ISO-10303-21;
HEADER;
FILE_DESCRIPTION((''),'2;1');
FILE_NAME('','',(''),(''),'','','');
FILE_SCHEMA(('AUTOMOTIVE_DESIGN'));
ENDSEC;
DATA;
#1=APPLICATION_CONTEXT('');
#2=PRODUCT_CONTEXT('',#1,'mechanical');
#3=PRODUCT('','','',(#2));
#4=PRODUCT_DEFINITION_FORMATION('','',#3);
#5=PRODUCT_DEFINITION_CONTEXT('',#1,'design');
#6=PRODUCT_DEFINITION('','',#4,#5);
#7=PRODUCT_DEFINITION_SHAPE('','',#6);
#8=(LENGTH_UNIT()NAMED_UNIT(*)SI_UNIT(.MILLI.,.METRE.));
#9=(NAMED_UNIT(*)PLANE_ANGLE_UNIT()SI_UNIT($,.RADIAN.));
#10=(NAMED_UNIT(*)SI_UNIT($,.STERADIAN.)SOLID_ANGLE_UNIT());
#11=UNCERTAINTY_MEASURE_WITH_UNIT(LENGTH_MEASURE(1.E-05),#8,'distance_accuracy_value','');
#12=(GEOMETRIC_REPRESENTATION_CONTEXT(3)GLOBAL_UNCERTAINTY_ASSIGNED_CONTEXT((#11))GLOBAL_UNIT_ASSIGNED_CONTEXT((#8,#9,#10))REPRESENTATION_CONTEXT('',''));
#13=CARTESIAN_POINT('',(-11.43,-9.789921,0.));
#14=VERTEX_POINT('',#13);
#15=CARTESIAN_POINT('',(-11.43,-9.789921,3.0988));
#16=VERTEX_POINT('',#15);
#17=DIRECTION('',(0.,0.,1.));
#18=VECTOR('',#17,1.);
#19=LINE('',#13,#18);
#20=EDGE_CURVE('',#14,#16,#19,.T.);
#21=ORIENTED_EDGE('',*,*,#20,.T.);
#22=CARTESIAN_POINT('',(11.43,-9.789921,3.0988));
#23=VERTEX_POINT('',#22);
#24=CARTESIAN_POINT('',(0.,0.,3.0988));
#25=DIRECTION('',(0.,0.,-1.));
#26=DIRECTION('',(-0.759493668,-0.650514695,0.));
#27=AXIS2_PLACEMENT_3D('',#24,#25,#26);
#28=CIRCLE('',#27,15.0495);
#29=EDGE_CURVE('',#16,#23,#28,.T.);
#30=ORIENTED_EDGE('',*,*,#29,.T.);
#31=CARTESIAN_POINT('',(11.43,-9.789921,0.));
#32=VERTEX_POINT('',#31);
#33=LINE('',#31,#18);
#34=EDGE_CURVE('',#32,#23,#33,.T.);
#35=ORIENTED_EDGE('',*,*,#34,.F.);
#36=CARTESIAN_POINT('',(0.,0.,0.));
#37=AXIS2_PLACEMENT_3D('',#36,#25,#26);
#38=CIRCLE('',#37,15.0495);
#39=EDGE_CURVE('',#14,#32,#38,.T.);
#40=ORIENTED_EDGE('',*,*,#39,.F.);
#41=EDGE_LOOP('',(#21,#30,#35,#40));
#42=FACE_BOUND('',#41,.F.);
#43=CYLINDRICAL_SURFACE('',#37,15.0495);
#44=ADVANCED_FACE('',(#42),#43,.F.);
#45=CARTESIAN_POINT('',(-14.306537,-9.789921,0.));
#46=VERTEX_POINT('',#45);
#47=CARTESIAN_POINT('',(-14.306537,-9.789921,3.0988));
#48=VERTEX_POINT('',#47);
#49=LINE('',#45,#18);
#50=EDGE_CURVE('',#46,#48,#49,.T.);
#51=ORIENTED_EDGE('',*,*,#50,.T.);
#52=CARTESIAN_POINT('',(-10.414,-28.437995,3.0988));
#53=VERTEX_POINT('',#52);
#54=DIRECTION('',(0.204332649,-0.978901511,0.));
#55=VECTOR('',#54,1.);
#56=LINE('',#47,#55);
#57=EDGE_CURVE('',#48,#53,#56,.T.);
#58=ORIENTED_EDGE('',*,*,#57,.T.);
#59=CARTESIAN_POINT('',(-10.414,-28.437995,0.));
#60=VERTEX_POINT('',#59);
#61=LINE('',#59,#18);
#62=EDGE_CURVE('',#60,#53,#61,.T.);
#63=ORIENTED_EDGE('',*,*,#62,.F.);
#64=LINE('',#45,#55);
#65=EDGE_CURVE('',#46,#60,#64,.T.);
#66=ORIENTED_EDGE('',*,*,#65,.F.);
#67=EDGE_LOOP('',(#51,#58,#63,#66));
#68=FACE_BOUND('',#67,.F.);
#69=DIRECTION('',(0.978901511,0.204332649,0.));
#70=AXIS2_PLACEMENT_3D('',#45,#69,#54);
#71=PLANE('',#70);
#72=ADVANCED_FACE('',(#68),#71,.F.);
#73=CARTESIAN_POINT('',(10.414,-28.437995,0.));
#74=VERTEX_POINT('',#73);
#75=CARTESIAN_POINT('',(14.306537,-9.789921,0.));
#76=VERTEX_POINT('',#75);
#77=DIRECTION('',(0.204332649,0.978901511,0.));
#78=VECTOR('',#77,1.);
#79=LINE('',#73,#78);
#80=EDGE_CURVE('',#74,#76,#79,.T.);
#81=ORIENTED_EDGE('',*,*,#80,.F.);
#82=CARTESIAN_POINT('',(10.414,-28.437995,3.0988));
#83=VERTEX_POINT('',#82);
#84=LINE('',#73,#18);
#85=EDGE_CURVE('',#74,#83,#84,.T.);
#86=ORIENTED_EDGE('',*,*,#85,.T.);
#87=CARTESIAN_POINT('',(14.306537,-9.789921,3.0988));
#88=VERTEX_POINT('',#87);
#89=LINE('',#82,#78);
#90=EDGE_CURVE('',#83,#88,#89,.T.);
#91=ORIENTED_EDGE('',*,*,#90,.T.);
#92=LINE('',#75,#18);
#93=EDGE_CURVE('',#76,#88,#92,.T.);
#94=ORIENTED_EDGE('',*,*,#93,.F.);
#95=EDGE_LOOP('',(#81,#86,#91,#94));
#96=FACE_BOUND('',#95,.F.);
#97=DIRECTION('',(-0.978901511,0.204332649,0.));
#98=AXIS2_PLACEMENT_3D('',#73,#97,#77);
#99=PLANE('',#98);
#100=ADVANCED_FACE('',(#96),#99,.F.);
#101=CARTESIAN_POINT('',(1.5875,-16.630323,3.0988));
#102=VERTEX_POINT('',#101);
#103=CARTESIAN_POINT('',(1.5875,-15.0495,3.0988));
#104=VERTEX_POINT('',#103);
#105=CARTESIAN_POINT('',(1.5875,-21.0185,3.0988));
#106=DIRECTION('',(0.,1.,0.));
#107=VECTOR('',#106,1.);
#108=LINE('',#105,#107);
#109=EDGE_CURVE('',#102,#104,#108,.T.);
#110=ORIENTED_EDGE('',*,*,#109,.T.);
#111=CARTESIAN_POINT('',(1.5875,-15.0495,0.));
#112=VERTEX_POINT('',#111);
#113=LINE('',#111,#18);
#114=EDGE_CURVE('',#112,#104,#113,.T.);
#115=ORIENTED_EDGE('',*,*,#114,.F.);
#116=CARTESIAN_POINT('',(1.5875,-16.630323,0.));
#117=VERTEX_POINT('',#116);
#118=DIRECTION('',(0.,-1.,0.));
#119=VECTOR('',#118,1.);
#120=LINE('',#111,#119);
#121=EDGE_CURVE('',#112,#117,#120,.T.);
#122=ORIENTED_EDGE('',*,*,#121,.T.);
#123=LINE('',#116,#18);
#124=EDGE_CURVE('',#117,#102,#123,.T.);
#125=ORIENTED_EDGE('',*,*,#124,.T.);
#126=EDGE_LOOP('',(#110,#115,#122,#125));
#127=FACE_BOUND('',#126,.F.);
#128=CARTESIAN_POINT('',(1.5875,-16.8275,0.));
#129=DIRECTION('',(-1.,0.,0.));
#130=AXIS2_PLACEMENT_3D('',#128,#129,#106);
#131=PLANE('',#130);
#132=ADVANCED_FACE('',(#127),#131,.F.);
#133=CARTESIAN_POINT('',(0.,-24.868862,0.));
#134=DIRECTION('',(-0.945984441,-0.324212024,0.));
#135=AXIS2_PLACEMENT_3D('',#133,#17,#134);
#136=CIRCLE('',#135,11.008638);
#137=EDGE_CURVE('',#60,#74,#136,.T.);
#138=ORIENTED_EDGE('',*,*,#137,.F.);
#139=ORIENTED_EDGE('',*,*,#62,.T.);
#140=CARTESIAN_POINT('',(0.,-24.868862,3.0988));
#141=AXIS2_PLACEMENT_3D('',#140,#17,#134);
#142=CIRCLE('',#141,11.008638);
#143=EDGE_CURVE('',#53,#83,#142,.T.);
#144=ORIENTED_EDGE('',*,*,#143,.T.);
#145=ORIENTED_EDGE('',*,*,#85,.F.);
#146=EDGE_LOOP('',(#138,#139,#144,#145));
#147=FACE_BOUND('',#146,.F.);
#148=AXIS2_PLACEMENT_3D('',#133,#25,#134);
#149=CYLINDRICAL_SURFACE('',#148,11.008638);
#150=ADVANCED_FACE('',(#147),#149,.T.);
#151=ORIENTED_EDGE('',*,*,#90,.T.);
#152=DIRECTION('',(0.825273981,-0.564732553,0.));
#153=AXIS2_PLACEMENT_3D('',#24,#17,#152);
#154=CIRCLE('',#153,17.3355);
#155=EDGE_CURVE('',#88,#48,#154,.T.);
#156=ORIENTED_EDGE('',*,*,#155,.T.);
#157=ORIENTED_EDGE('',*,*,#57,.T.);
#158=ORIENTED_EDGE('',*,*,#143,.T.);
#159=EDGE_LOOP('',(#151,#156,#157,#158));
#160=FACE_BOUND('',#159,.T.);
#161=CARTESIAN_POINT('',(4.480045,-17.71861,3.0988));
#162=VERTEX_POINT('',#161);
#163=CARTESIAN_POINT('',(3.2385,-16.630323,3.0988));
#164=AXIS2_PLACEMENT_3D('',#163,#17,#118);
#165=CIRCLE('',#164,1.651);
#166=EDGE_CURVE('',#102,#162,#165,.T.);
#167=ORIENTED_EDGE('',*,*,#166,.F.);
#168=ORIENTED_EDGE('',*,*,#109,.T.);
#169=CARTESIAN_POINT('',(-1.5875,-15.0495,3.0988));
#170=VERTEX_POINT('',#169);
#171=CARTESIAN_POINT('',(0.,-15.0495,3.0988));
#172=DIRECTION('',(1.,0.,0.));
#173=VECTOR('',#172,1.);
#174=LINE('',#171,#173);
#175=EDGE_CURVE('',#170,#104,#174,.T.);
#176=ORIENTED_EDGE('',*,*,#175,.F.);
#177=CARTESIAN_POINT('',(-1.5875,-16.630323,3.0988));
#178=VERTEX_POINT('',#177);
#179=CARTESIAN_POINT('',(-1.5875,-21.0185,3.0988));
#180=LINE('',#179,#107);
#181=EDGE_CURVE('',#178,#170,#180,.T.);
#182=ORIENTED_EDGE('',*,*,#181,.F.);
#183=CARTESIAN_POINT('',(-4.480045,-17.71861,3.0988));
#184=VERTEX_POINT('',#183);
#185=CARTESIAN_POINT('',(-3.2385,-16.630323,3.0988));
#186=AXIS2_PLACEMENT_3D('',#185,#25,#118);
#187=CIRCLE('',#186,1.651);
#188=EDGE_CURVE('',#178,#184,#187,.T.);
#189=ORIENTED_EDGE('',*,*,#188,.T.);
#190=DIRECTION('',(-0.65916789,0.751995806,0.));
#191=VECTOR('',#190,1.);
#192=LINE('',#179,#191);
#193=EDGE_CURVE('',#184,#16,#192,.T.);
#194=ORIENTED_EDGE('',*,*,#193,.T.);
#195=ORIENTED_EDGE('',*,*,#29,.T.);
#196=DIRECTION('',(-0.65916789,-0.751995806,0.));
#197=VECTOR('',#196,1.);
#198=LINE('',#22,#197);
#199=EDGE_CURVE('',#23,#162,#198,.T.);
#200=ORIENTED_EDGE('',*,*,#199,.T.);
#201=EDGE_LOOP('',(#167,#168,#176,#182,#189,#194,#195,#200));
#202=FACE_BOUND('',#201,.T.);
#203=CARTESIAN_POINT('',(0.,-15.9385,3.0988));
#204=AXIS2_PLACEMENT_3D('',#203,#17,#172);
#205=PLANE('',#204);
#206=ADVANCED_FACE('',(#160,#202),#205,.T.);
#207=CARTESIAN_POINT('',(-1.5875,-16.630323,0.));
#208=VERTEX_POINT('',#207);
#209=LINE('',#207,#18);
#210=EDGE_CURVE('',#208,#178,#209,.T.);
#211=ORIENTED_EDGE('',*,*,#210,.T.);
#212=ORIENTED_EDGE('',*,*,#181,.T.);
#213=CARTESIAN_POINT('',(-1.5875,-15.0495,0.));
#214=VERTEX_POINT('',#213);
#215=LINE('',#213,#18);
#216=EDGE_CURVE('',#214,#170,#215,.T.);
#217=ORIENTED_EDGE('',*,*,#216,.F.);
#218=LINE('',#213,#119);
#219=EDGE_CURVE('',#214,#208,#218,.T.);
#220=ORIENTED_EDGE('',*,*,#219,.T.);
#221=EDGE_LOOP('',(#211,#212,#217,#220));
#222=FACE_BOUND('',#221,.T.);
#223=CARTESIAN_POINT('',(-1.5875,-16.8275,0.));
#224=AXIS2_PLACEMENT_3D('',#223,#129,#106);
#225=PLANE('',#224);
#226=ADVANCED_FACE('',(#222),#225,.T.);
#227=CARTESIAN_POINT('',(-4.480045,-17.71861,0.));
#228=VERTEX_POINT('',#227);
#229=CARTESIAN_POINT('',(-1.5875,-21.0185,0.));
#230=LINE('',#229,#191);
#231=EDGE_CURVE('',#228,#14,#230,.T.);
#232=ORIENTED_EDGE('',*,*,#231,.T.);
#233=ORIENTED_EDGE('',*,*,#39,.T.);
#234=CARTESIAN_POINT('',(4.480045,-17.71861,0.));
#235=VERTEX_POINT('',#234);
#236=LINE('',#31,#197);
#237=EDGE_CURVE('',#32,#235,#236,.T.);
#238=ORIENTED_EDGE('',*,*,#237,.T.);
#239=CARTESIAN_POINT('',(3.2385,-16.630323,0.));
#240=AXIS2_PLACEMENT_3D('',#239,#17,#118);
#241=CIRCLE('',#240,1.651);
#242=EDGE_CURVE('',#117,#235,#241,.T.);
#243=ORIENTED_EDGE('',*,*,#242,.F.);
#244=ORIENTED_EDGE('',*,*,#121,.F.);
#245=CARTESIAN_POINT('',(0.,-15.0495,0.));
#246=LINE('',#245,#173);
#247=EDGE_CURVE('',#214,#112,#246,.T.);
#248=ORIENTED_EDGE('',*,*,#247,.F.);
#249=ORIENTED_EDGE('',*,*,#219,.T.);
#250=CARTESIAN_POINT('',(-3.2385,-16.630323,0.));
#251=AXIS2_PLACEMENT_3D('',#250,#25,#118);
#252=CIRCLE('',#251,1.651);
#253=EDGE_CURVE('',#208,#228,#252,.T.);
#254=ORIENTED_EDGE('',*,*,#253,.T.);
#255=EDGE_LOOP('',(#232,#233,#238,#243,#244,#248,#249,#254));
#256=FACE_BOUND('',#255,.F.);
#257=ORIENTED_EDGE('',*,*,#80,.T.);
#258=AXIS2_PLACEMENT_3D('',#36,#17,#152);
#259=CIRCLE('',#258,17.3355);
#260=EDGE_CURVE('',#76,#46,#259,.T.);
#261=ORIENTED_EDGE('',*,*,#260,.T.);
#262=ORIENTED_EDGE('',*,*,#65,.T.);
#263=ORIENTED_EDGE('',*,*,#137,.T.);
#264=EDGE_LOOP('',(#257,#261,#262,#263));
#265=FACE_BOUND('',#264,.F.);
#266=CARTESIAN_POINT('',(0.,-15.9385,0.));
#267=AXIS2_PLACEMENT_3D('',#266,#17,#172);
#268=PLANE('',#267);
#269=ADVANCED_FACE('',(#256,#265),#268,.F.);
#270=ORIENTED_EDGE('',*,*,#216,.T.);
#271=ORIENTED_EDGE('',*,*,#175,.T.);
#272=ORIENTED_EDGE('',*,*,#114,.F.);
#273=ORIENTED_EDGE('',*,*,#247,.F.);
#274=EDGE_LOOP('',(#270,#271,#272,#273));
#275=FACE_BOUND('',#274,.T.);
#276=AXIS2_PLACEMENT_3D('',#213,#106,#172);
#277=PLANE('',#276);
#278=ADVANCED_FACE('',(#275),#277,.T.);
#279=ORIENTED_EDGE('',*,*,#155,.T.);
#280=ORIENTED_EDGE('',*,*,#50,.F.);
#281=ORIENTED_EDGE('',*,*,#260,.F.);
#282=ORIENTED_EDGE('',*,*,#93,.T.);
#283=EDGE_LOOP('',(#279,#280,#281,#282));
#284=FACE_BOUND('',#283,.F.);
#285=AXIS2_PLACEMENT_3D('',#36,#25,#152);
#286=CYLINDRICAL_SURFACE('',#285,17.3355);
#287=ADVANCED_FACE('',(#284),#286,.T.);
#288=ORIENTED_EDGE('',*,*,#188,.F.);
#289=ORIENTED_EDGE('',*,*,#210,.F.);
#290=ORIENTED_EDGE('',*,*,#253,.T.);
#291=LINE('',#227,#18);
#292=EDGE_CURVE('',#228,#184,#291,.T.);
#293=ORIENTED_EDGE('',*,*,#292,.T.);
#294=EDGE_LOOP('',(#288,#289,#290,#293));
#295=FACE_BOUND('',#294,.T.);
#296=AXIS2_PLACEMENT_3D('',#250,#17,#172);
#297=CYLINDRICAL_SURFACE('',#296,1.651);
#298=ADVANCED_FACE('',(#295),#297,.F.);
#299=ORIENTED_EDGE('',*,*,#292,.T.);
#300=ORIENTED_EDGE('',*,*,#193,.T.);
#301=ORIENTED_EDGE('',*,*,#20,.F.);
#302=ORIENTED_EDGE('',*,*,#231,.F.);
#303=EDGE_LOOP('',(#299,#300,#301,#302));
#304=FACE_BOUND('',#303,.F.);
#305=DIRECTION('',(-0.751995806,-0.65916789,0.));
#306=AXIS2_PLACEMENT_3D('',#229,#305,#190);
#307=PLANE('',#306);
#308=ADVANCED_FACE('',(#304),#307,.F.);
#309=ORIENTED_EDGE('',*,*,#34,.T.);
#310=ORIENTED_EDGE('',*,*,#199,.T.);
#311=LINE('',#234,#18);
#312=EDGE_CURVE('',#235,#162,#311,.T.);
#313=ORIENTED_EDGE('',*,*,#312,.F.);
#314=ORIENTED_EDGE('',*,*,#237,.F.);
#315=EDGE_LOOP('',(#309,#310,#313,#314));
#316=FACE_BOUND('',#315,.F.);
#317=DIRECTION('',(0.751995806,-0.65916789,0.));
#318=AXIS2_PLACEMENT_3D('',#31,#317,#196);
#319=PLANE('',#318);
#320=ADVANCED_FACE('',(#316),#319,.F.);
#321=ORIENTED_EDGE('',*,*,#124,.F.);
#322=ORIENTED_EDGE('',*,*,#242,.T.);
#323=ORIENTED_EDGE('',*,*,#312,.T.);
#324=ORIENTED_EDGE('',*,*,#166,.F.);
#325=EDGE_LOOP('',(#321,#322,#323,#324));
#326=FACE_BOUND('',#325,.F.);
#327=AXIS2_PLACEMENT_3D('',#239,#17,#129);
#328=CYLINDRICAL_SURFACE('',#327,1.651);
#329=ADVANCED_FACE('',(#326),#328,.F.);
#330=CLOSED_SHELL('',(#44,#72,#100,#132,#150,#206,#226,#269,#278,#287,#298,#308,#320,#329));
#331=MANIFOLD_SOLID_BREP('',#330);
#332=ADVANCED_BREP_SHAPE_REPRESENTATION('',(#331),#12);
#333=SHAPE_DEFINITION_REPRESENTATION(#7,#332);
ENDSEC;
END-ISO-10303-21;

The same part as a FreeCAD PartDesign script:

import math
import FreeCAD as App
import Part
import Sketcher
Q = App.Units.Quantity


def edges_at(feature, points):
    """Names of the edges that pass closest to the given points."""
    edges = feature.Shape.Edges
    near = lambda p: min(range(len(edges)), key=lambda i: edges[i].distToShape(Part.Vertex(*p))[0])
    return sorted({f"Edge{near(p) + 1}" for p in points})

doc = App.newDocument("Part")
params = doc.addObject("Spreadsheet::Sheet", "Params")
for row, (alias, value) in enumerate([
    ("sketch1_length", "0.75 in"),
    ("sketch1_width", "0.125 in"),
    ("sketch1_height", "0.165 in"),
    ("pad1_length", "0.122 in"),
    ("sketch2_height", "0.07 in"),
    ("sketch2_width", "0.125 in"),
    ("pad2_length", "0.122 in"),
    ("fillet_radius", "0.065 in"),
], start=1):
    params.set(f"A{row}", alias)
    params.set(f"B{row}", "=" + value)
    params.setAlias(f"B{row}", alias)

body = doc.addObject("PartDesign::Body", "Body")

# Sketch on XY plane
sketch1 = doc.addObject("Sketcher::SketchObject", "Sketch")
body.addObject(sketch1)
sketch1.AttachmentSupport = (doc.XY_Plane, [""])
sketch1.MapMode = "FlatFace"
sketch1.addGeometry(Part.ArcOfCircle(Part.Circle(App.Vector(0, 0, 0), App.Vector(0, 0, 1), 17.3), math.radians(-34), math.radians(214)), False)
sketch1.addGeometry(Part.LineSegment(App.Vector(-14.3, -9.8, 0), App.Vector(-10.4, -28.4, 0)), False)
sketch1.addGeometry(Part.ArcOfCircle(Part.Circle(App.Vector(0, -24.9, 0), App.Vector(0, 0, 1), 11), math.radians(-161), math.radians(-19)), False)
sketch1.addGeometry(Part.LineSegment(App.Vector(10.4, -28.4, 0), App.Vector(14.3, -9.8, 0)), False)
sketch1.addGeometry(Part.LineSegment(App.Vector(1.6, -21, 0), App.Vector(1.6, -16.8, 0)), False)
sketch1.addGeometry(Part.LineSegment(App.Vector(1.6, -16.8, 0), App.Vector(-1.6, -16.8, 0)), False)
sketch1.addGeometry(Part.LineSegment(App.Vector(-1.6, -16.8, 0), App.Vector(-1.6, -21, 0)), False)
sketch1.addGeometry(Part.LineSegment(App.Vector(-1.6, -21, 0), App.Vector(-11.4, -9.8, 0)), False)
sketch1.addGeometry(Part.ArcOfCircle(Part.Circle(App.Vector(0, 0, 0), App.Vector(0, 0, 1), 15), math.radians(-41), math.radians(221)), False)
sketch1.addGeometry(Part.LineSegment(App.Vector(11.4, -9.8, 0), App.Vector(1.6, -21, 0)), False)
sketch1.addConstraint(Sketcher.Constraint("Coincident", 0, 2, 1, 1))
sketch1.addConstraint(Sketcher.Constraint("Coincident", 1, 2, 2, 1))
sketch1.addConstraint(Sketcher.Constraint("Coincident", 2, 2, 3, 1))
sketch1.addConstraint(Sketcher.Constraint("Coincident", 3, 2, 0, 1))
sketch1.addConstraint(Sketcher.Constraint("Coincident", 4, 2, 5, 1))
sketch1.addConstraint(Sketcher.Constraint("Coincident", 5, 2, 6, 1))
sketch1.addConstraint(Sketcher.Constraint("Coincident", 6, 2, 7, 1))
sketch1.addConstraint(Sketcher.Constraint("Coincident", 7, 2, 8, 2))
sketch1.addConstraint(Sketcher.Constraint("Coincident", 8, 1, 9, 1))
sketch1.addConstraint(Sketcher.Constraint("Coincident", 9, 2, 4, 1))
sketch1.addConstraint(Sketcher.Constraint("Vertical", 4))
sketch1.addConstraint(Sketcher.Constraint("Horizontal", 5))
sketch1.addConstraint(Sketcher.Constraint("Vertical", 6))
sketch1.addConstraint(Sketcher.Constraint("Coincident", 0, 3, -1, 1))
sketch1.addConstraint(Sketcher.Constraint("Coincident", 8, 3, -1, 1))
sketch1.addConstraint(Sketcher.Constraint("Symmetric", 1, 2, 2, 2, -2))
sketch1.addConstraint(Sketcher.Constraint("Symmetric", 6, 2, 9, 2, -2))
sketch1.addConstraint(Sketcher.Constraint("Horizontal", 0, 2, 3, 2))
sketch1.addConstraint(Sketcher.Constraint("Horizontal", 3, 2, 7, 2))
sketch1.addConstraint(Sketcher.Constraint("Horizontal", 7, 2, 8, 1))
sketch1.addConstraint(Sketcher.Constraint("Radius", 0, Q("0.6825 in")))
sketch1.addConstraint(Sketcher.Constraint("Radius", 8, Q("0.5925 in")))
sketch1.addConstraint(Sketcher.Constraint("Distance", 1, Q("0.75 in")))
sketch1.addConstraint(Sketcher.Constraint("DistanceX", 5, 2, 5, 1, Q("0.125 in")))
sketch1.addConstraint(Sketcher.Constraint("DistanceY", 4, 1, 4, 2, Q("0.165 in")))
sketch1.addConstraint(Sketcher.Constraint("DistanceX", 1, 2, -1, 1, Q("0.41 in")))
sketch1.addConstraint(Sketcher.Constraint("DistanceX", 7, 2, -1, 1, Q("0.45 in")))
sketch1.addConstraint(Sketcher.Constraint("DistanceY", 4, 2, -1, 1, Q("0.6625 in")))
sketch1.addConstraint(Sketcher.Constraint("Radius", 2, 11.008638))
sketch1.setExpression("Constraints[22]", "Params.sketch1_length")
sketch1.setExpression("Constraints[23]", "Params.sketch1_width")
sketch1.setExpression("Constraints[24]", "Params.sketch1_height")
pad1 = doc.addObject("PartDesign::Pad", "Pad")
body.addObject(pad1)
pad1.Profile = sketch1
pad1.setExpression("Length", "Params.pad1_length")

# Sketch on XY plane
sketch2 = doc.addObject("Sketcher::SketchObject", "Sketch001")
body.addObject(sketch2)
sketch2.AttachmentSupport = (doc.XY_Plane, [""])
sketch2.MapMode = "FlatFace"
sketch2.addGeometry(Part.LineSegment(App.Vector(-1.6, -15, 0), App.Vector(-1.6, -16.8, 0)), False)
sketch2.addGeometry(Part.LineSegment(App.Vector(-1.6, -16.8, 0), App.Vector(1.6, -16.8, 0)), False)
sketch2.addGeometry(Part.LineSegment(App.Vector(1.6, -16.8, 0), App.Vector(1.6, -15, 0)), False)
sketch2.addGeometry(Part.LineSegment(App.Vector(1.6, -15, 0), App.Vector(-1.6, -15, 0)), False)
sketch2.addConstraint(Sketcher.Constraint("Coincident", 0, 2, 1, 1))
sketch2.addConstraint(Sketcher.Constraint("Coincident", 1, 2, 2, 1))
sketch2.addConstraint(Sketcher.Constraint("Coincident", 2, 2, 3, 1))
sketch2.addConstraint(Sketcher.Constraint("Coincident", 3, 2, 0, 1))
sketch2.addConstraint(Sketcher.Constraint("Vertical", 0))
sketch2.addConstraint(Sketcher.Constraint("Horizontal", 1))
sketch2.addConstraint(Sketcher.Constraint("Vertical", 2))
sketch2.addConstraint(Sketcher.Constraint("Horizontal", 3))
sketch2.addConstraint(Sketcher.Constraint("DistanceY", 0, 2, 0, 1, Q("0.07 in")))
sketch2.addConstraint(Sketcher.Constraint("DistanceX", 1, 1, 1, 2, Q("0.125 in")))
sketch2.addConstraint(Sketcher.Constraint("DistanceX", 0, 2, -1, 1, Q("0.0625 in")))
sketch2.addConstraint(Sketcher.Constraint("DistanceY", 0, 2, -1, 1, Q("0.6625 in")))
sketch2.setExpression("Constraints[8]", "Params.sketch2_height")
sketch2.setExpression("Constraints[9]", "Params.sketch2_width")
pad2 = doc.addObject("PartDesign::Pad", "Pad001")
body.addObject(pad2)
pad2.Profile = sketch2
pad2.setExpression("Length", "Params.pad2_length")
doc.recompute()

fillet = doc.addObject("PartDesign::Fillet", "Fillet")
body.addObject(fillet)
fillet.Base = (pad2, edges_at(pad2, [(-1.587, -21.018, 1.549), (1.587, -21.018, 1.549)]))
fillet.setExpression("Radius", "Params.fillet_radius")

doc.recompute()
